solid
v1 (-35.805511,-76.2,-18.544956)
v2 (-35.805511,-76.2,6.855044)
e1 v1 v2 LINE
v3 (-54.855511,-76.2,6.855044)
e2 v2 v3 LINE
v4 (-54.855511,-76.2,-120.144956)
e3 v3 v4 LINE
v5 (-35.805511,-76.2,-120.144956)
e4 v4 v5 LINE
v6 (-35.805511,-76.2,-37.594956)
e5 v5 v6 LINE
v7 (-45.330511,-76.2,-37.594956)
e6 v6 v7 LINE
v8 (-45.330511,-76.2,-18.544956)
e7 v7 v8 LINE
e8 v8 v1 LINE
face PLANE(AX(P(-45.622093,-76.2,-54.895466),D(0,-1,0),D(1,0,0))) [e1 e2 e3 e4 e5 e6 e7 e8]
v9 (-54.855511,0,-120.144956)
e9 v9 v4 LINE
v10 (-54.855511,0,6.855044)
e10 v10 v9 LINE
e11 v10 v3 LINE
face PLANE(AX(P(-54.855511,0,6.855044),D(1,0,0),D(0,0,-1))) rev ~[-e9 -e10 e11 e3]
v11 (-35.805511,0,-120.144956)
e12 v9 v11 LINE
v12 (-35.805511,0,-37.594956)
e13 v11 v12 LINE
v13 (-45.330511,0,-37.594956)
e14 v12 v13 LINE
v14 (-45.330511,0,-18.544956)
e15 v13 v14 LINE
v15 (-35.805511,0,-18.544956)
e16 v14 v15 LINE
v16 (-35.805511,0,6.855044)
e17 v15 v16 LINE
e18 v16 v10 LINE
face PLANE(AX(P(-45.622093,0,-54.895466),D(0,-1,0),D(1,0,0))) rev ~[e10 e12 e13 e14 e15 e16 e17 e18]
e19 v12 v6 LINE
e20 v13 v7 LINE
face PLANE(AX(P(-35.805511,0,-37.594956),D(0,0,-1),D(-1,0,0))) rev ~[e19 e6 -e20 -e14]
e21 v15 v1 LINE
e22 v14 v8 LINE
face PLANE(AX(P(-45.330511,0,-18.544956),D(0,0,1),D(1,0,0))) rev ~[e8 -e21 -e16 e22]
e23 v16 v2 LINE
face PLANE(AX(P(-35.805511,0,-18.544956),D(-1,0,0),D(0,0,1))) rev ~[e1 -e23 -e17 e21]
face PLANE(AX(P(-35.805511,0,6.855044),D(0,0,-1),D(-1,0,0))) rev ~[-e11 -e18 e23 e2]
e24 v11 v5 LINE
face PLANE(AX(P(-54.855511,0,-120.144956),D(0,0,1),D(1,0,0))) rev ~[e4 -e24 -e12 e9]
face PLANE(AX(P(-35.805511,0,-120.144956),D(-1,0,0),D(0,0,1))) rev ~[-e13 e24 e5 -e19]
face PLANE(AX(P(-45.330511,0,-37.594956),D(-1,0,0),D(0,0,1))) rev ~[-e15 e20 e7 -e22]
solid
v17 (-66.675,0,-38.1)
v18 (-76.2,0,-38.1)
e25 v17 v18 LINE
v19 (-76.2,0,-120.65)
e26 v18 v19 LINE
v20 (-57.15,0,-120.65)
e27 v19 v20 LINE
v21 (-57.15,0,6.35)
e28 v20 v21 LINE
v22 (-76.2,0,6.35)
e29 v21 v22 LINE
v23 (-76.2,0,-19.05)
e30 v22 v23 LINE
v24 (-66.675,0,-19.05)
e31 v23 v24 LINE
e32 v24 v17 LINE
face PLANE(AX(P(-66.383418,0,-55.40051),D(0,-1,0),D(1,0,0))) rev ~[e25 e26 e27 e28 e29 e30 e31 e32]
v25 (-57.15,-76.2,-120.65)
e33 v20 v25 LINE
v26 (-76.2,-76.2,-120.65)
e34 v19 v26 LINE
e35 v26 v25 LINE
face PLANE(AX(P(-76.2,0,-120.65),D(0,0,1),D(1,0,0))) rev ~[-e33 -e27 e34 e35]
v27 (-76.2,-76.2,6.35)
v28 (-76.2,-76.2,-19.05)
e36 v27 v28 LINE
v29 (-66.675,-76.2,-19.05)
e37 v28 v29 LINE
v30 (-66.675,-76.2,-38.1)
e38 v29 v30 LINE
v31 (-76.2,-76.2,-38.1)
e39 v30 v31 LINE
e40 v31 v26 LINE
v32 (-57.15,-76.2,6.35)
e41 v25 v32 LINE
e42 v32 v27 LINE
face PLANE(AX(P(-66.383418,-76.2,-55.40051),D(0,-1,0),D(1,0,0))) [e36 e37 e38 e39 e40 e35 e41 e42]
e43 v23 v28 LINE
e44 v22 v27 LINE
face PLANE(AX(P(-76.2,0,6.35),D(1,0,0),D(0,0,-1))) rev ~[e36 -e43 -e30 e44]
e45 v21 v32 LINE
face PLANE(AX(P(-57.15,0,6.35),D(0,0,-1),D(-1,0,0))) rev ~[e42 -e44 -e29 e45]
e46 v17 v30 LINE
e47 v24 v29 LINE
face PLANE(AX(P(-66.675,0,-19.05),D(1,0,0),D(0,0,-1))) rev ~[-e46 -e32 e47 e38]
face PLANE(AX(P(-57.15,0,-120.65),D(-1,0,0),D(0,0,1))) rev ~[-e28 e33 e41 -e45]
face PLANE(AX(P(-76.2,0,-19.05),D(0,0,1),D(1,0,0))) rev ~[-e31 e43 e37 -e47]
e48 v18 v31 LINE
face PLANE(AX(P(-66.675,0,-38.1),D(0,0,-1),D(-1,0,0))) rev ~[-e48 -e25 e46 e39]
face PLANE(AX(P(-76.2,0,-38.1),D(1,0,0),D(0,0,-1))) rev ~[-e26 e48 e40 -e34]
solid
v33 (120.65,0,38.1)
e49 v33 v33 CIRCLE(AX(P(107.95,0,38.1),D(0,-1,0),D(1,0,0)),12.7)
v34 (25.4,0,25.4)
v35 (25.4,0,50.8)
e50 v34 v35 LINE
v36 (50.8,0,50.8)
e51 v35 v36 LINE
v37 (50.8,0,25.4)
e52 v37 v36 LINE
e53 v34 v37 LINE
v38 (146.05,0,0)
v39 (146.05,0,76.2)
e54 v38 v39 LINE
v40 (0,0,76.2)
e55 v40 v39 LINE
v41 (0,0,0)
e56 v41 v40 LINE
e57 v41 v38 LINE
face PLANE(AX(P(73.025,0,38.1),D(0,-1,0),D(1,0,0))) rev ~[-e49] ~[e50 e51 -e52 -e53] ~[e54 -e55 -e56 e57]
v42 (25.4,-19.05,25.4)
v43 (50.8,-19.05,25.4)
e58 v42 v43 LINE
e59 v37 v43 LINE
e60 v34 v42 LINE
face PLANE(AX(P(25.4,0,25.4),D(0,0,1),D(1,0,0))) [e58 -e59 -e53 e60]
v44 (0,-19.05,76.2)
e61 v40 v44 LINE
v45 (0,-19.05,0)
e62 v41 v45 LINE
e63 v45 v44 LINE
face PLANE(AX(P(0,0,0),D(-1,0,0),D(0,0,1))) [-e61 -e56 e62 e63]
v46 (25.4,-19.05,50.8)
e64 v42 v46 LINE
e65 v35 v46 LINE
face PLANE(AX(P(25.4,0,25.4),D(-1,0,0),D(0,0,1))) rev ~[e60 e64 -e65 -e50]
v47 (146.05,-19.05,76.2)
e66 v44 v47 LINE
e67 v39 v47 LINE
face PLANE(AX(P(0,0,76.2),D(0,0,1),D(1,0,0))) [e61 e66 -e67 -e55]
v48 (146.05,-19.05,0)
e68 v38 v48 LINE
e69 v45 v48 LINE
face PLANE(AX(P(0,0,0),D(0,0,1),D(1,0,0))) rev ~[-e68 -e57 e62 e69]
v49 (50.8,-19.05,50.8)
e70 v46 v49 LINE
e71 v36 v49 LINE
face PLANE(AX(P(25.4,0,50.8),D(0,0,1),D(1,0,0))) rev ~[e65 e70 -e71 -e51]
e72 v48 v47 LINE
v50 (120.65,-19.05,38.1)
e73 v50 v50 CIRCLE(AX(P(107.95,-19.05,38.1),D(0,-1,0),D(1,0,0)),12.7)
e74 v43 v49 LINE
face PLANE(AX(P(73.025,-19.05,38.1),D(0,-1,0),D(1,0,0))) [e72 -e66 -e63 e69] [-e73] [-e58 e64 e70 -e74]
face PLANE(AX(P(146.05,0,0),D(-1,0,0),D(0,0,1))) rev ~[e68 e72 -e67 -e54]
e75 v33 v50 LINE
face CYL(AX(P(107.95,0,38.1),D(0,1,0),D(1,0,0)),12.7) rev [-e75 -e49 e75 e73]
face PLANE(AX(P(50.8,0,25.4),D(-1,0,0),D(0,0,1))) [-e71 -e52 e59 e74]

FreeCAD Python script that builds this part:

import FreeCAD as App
import Part
import Sketcher
Q = App.Units.Quantity


def add_polygon(sketch, points):
    """Adds a closed chain of lines whose ends are joined by coincident constraints."""
    first, n = sketch.GeometryCount, len(points)
    for a, b in zip(points, points[1:] + points[:1]):
        sketch.addGeometry(Part.LineSegment(App.Vector(*a, 0), App.Vector(*b, 0)), False)
    for i in range(n):
        sketch.addConstraint(Sketcher.Constraint("Coincident", first + i, 2, first + (i + 1) % n, 1))

doc = App.newDocument("Part")
body = doc.addObject("PartDesign::Body", "Body")

sketch1 = body.newObject("Sketcher::SketchObject", "Sketch")
sketch1.AttachmentSupport = (doc.getObject("XZ_Plane"), [""])
sketch1.MapMode = "FlatFace"
add_polygon(sketch1, [(0, 76), (0, 0), (146, 0), (146, 76)])
add_polygon(sketch1, [(51, 25), (25, 25), (25, 51), (51, 51)])
sketch1.addGeometry(Part.Circle(App.Vector(108, 38, 0), App.Vector(0, 0, 1), 13), False)
sketch1.addConstraint(Sketcher.Constraint("Vertical", 0))
sketch1.addConstraint(Sketcher.Constraint("Horizontal", 1))
sketch1.addConstraint(Sketcher.Constraint("Vertical", 2))
sketch1.addConstraint(Sketcher.Constraint("Horizontal", 3))
sketch1.addConstraint(Sketcher.Constraint("Horizontal", 4))
sketch1.addConstraint(Sketcher.Constraint("Vertical", 5))
sketch1.addConstraint(Sketcher.Constraint("Horizontal", 6))
sketch1.addConstraint(Sketcher.Constraint("Vertical", 7))
sketch1.addConstraint(Sketcher.Constraint("Coincident", 0, 2, -1, 1))
sketch1.addConstraint(Sketcher.Constraint("Equal", 6, 5))
sketch1.addConstraint(Sketcher.Constraint("Diameter", 8, Q("1 in")))
sketch1.addConstraint(Sketcher.Constraint("DistanceX", 4, 2, 4, 1, Q("1 in")))
sketch1.addConstraint(Sketcher.Constraint("DistanceY", 0, 2, 0, 1, Q("3 in")))
sketch1.addConstraint(Sketcher.Constraint("DistanceX", -1, 1, 4, 2, Q("1 in")))
sketch1.addConstraint(Sketcher.Constraint("DistanceY", -1, 1, 4, 2, Q("1 in")))
sketch1.addConstraint(Sketcher.Constraint("DistanceX", 1, 1, 1, 2, Q("5.75 in")))
sketch1.addConstraint(Sketcher.Constraint("DistanceY", -1, 1, 8, 3, Q("1.5 in")))
sketch1.addConstraint(Sketcher.Constraint("DistanceX", 8, 3, 1, 2, Q("1.5 in")))
pad1 = body.newObject("PartDesign::Pad", "Pad")
pad1.Profile = sketch1
pad1.Length = Q("0.75 in")
body2 = doc.addObject("PartDesign::Body", "Body001")

sketch2 = body2.newObject("Sketcher::SketchObject", "Sketch001")
sketch2.AttachmentSupport = (doc.getObject("XZ_Plane001"), [""])
sketch2.MapMode = "FlatFace"
add_polygon(sketch2, [(-76, 6), (-76, -19), (-67, -19), (-67, -38), (-76, -38), (-76, -121), (-57, -121), (-57, 6)])
sketch2.addConstraint(Sketcher.Constraint("Vertical", 0))
sketch2.addConstraint(Sketcher.Constraint("Horizontal", 1))
sketch2.addConstraint(Sketcher.Constraint("Vertical", 2))
sketch2.addConstraint(Sketcher.Constraint("Horizontal", 3))
sketch2.addConstraint(Sketcher.Constraint("Vertical", 4))
sketch2.addConstraint(Sketcher.Constraint("Horizontal", 5))
sketch2.addConstraint(Sketcher.Constraint("Vertical", 6))
sketch2.addConstraint(Sketcher.Constraint("Horizontal", 7))
sketch2.addConstraint(Sketcher.Constraint("Vertical", 0, 2, 3, 2))
sketch2.addConstraint(Sketcher.Constraint("Equal", 7, 2))
sketch2.addConstraint(Sketcher.Constraint("DistanceY", 0, 2, 0, 1, Q("1 in")))
sketch2.addConstraint(Sketcher.Constraint("DistanceY", 6, 1, 6, 2, Q("5 in")))
sketch2.addConstraint(Sketcher.Constraint("DistanceX", 0, 2, -1, 1, Q("3 in")))
sketch2.addConstraint(Sketcher.Constraint("DistanceX", 5, 1, 5, 2, Q("0.75 in")))
sketch2.addConstraint(Sketcher.Constraint("DistanceY", 2, 2, -1, 1, Q("1.5 in")))
sketch2.addConstraint(Sketcher.Constraint("DistanceX", 1, 1, 1, 2, Q("0.375 in")))
pad2 = body2.newObject("PartDesign::Pad", "Pad001")
pad2.Profile = sketch2
pad2.Length = Q("3 in")
body3 = doc.addObject("PartDesign::Body", "Body002")

sketch3 = body3.newObject("Sketcher::SketchObject", "Sketch002")
sketch3.AttachmentSupport = (doc.getObject("XZ_Plane002"), [""])
sketch3.MapMode = "FlatFace"
add_polygon(sketch3, [(-36, 7), (-55, 7), (-55, -120), (-36, -120), (-36, -38), (-45, -38), (-45, -19), (-36, -19)])
sketch3.addConstraint(Sketcher.Constraint("Horizontal", 0))
sketch3.addConstraint(Sketcher.Constraint("Vertical", 1))
sketch3.addConstraint(Sketcher.Constraint("Horizontal", 2))
sketch3.addConstraint(Sketcher.Constraint("Vertical", 3))
sketch3.addConstraint(Sketcher.Constraint("Horizontal", 4))
sketch3.addConstraint(Sketcher.Constraint("Vertical", 5))
sketch3.addConstraint(Sketcher.Constraint("Horizontal", 6))
sketch3.addConstraint(Sketcher.Constraint("Vertical", 7))
sketch3.addConstraint(Sketcher.Constraint("Vertical", 3, 2, 6, 2))
sketch3.addConstraint(Sketcher.Constraint("Equal", 2, 5))
sketch3.addConstraint(Sketcher.Constraint("DistanceY", 1, 2, 1, 1, Q("5 in")))
sketch3.addConstraint(Sketcher.Constraint("DistanceY", 7, 1, 7, 2, Q("1 in")))
sketch3.addConstraint(Sketcher.Constraint("DistanceX", 0, 2, 0, 1, Q("0.75 in")))
sketch3.addConstraint(Sketcher.Constraint("DistanceX", 4, 2, 4, 1, Q("0.375 in")))
sketch3.addConstraint(Sketcher.Constraint("DistanceX", 0, 2, -1, 1, Q("54.855511 mm")))
sketch3.addConstraint(Sketcher.Constraint("DistanceY", -1, 1, 0, 2, Q("6.855044 mm")))
pad3 = body3.newObject("PartDesign::Pad", "Pad002")
pad3.Profile = sketch3
pad3.Length = Q("3 in")

doc.recompute()
